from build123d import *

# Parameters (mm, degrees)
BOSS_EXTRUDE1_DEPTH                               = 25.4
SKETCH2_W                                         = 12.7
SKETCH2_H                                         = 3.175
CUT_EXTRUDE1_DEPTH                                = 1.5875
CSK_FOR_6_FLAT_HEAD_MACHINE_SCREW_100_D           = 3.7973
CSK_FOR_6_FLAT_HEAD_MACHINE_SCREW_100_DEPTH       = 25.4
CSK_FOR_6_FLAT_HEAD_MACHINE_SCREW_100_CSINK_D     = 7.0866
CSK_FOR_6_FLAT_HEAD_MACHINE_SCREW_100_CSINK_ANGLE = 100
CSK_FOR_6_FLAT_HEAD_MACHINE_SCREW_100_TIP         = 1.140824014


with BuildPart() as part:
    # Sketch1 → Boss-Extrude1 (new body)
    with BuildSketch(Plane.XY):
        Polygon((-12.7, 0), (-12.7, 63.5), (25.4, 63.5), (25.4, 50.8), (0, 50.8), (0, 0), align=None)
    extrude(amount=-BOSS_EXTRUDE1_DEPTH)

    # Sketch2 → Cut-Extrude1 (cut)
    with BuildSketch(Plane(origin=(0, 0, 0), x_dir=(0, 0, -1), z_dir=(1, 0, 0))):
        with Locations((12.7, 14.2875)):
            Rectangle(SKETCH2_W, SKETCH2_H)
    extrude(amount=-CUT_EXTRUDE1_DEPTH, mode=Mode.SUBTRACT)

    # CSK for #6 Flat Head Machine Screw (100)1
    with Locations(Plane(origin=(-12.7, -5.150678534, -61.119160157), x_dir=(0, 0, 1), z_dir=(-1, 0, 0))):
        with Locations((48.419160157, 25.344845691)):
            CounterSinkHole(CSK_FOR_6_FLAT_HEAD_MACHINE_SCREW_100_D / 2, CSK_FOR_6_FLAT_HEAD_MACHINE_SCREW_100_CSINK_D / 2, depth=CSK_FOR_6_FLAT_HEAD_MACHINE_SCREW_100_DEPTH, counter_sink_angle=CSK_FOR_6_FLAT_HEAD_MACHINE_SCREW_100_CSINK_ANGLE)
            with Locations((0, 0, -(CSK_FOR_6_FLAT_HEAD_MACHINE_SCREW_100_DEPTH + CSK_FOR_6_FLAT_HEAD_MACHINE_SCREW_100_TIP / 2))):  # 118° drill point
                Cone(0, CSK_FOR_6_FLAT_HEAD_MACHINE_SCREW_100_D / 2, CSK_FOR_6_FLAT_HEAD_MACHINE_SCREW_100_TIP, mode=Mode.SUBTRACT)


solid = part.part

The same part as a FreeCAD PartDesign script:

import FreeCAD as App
import Part
import Sketcher

V = App.Vector
Q = App.Units.Quantity

doc = App.newDocument("Part")
body = doc.addObject("PartDesign::Body", "Body")

# Sketch on XY plane
sketch1 = body.newObject("Sketcher::SketchObject", "Sketch")
sketch1.AttachmentSupport = (doc.getObject("XY_Plane"), [""])
sketch1.MapMode = "FlatFace"
sketch1.addGeometry([
    Part.LineSegment(V(-12.7, 63.5, 0), V(-12.7, 0, 0)),  # 0
    Part.LineSegment(V(-12.7, 0, 0), V(0, 0, 0)),  # 1
    Part.LineSegment(V(0, 0, 0), V(0, 50.8, 0)),  # 2
    Part.LineSegment(V(0, 50.8, 0), V(25.4, 50.8, 0)),  # 3
    Part.LineSegment(V(25.4, 50.8, 0), V(25.4, 63.5, 0)),  # 4
    Part.LineSegment(V(25.4, 63.5, 0), V(-12.7, 63.5, 0)),  # 5
], False)
sketch1.addConstraint([
    Sketcher.Constraint("Coincident", 0, 2, 1, 1),
    Sketcher.Constraint("Coincident", 1, 2, 2, 1),
    Sketcher.Constraint("Coincident", 2, 2, 3, 1),
    Sketcher.Constraint("Coincident", 3, 2, 4, 1),
    Sketcher.Constraint("Coincident", 4, 2, 5, 1),
    Sketcher.Constraint("Coincident", 5, 2, 0, 1),
    Sketcher.Constraint("Vertical", 0),
    Sketcher.Constraint("Horizontal", 1),
    Sketcher.Constraint("Vertical", 2),
    Sketcher.Constraint("Horizontal", 3),
    Sketcher.Constraint("Vertical", 4),
    Sketcher.Constraint("Horizontal", 5),
    Sketcher.Constraint("Coincident", 1, 2, -1, 1),
    Sketcher.Constraint("Equal", 1, 4),
    Sketcher.Constraint("DistanceX", 3, 1, 3, 2, Q("1 in")),
    Sketcher.Constraint("DistanceY", 2, 1, 2, 2, Q("2 in")),
    Sketcher.Constraint("DistanceX", 1, 1, 1, 2, Q("0.5 in")),
])
pad1 = body.newObject("PartDesign::Pad", "Pad")
pad1.Profile = sketch1
pad1.Length = Q("1 in")
pad1.Reversed = True

# Sketch on YZ plane
sketch2 = body.newObject("Sketcher::SketchObject", "Sketch001")
sketch2.AttachmentSupport = (doc.getObject("YZ_Plane"), [""])
sketch2.MapMode = "FlatFace"
sketch2.addGeometry([
    Part.LineSegment(V(15.875, -6.35, 0), V(12.7, -6.35, 0)),
    Part.LineSegment(V(12.7, -6.35, 0), V(12.7, -19.05, 0)),
    Part.LineSegment(V(12.7, -19.05, 0), V(15.875, -19.05, 0)),
    Part.LineSegment(V(15.875, -19.05, 0), V(15.875, -6.35, 0)),
], False)
sketch2.addConstraint([
    Sketcher.Constraint("Coincident", 0, 2, 1, 1),
    Sketcher.Constraint("Coincident", 1, 2, 2, 1),
    Sketcher.Constraint("Coincident", 2, 2, 3, 1),
    Sketcher.Constraint("Coincident", 3, 2, 0, 1),
    Sketcher.Constraint("Horizontal", 0),
    Sketcher.Constraint("Vertical", 1),
    Sketcher.Constraint("Horizontal", 2),
    Sketcher.Constraint("Vertical", 3),
    Sketcher.Constraint("DistanceY", 1, 2, 1, 1, Q("0.5 in")),
    Sketcher.Constraint("DistanceX", -1, 1, 0, 2, Q("0.5 in")),
    Sketcher.Constraint("DistanceX", 0, 2, 0, 1, Q("0.125 in")),
    Sketcher.Constraint("DistanceY", 0, 2, -1, 1, Q("0.25 in")),
])
pocket1 = body.newObject("PartDesign::Pocket", "Pocket")
pocket1.Profile = sketch2
pocket1.Length = Q("0.0625 in")

# Sketch on YZ plane
sketch3 = body.newObject("Sketcher::SketchObject", "Sketch002")
sketch3.AttachmentSupport = (doc.getObject("YZ_Plane"), [""])
sketch3.MapMode = "FlatFace"
sketch3.AttachmentOffset = App.Placement(V(0, 0, -0.5 * 25.4), App.Rotation())
sketch3.addGeometry(Part.Circle(V(20.194167, -12.7, 0), V(0, 0, 1), 1.89865), False)
sketch3.addConstraint([
    Sketcher.Constraint("Diameter", 0, Q("0.1495 in")),
    Sketcher.Constraint("DistanceY", 0, 3, -1, 1, Q("0.5 in")),
    Sketcher.Constraint("DistanceX", -1, 1, 0, 3, Q("20.194167 mm")),
])
doc.recompute()
hole = body.newObject("PartDesign::Hole", "Hole")
hole.Profile = sketch3
hole.ThreadType = "None"
hole.Diameter = Q("0.1495 in")
hole.DepthType = "Dimension"
hole.Depth = Q("1 in")
hole.DrillPoint = "Angled"
hole.DrillPointAngle = 118
hole.HoleCutType = "Countersink"
hole.HoleCutDiameter = Q("0.279 in")
hole.HoleCutCountersinkAngle = 100
hole.Reversed = True

doc.recompute()
